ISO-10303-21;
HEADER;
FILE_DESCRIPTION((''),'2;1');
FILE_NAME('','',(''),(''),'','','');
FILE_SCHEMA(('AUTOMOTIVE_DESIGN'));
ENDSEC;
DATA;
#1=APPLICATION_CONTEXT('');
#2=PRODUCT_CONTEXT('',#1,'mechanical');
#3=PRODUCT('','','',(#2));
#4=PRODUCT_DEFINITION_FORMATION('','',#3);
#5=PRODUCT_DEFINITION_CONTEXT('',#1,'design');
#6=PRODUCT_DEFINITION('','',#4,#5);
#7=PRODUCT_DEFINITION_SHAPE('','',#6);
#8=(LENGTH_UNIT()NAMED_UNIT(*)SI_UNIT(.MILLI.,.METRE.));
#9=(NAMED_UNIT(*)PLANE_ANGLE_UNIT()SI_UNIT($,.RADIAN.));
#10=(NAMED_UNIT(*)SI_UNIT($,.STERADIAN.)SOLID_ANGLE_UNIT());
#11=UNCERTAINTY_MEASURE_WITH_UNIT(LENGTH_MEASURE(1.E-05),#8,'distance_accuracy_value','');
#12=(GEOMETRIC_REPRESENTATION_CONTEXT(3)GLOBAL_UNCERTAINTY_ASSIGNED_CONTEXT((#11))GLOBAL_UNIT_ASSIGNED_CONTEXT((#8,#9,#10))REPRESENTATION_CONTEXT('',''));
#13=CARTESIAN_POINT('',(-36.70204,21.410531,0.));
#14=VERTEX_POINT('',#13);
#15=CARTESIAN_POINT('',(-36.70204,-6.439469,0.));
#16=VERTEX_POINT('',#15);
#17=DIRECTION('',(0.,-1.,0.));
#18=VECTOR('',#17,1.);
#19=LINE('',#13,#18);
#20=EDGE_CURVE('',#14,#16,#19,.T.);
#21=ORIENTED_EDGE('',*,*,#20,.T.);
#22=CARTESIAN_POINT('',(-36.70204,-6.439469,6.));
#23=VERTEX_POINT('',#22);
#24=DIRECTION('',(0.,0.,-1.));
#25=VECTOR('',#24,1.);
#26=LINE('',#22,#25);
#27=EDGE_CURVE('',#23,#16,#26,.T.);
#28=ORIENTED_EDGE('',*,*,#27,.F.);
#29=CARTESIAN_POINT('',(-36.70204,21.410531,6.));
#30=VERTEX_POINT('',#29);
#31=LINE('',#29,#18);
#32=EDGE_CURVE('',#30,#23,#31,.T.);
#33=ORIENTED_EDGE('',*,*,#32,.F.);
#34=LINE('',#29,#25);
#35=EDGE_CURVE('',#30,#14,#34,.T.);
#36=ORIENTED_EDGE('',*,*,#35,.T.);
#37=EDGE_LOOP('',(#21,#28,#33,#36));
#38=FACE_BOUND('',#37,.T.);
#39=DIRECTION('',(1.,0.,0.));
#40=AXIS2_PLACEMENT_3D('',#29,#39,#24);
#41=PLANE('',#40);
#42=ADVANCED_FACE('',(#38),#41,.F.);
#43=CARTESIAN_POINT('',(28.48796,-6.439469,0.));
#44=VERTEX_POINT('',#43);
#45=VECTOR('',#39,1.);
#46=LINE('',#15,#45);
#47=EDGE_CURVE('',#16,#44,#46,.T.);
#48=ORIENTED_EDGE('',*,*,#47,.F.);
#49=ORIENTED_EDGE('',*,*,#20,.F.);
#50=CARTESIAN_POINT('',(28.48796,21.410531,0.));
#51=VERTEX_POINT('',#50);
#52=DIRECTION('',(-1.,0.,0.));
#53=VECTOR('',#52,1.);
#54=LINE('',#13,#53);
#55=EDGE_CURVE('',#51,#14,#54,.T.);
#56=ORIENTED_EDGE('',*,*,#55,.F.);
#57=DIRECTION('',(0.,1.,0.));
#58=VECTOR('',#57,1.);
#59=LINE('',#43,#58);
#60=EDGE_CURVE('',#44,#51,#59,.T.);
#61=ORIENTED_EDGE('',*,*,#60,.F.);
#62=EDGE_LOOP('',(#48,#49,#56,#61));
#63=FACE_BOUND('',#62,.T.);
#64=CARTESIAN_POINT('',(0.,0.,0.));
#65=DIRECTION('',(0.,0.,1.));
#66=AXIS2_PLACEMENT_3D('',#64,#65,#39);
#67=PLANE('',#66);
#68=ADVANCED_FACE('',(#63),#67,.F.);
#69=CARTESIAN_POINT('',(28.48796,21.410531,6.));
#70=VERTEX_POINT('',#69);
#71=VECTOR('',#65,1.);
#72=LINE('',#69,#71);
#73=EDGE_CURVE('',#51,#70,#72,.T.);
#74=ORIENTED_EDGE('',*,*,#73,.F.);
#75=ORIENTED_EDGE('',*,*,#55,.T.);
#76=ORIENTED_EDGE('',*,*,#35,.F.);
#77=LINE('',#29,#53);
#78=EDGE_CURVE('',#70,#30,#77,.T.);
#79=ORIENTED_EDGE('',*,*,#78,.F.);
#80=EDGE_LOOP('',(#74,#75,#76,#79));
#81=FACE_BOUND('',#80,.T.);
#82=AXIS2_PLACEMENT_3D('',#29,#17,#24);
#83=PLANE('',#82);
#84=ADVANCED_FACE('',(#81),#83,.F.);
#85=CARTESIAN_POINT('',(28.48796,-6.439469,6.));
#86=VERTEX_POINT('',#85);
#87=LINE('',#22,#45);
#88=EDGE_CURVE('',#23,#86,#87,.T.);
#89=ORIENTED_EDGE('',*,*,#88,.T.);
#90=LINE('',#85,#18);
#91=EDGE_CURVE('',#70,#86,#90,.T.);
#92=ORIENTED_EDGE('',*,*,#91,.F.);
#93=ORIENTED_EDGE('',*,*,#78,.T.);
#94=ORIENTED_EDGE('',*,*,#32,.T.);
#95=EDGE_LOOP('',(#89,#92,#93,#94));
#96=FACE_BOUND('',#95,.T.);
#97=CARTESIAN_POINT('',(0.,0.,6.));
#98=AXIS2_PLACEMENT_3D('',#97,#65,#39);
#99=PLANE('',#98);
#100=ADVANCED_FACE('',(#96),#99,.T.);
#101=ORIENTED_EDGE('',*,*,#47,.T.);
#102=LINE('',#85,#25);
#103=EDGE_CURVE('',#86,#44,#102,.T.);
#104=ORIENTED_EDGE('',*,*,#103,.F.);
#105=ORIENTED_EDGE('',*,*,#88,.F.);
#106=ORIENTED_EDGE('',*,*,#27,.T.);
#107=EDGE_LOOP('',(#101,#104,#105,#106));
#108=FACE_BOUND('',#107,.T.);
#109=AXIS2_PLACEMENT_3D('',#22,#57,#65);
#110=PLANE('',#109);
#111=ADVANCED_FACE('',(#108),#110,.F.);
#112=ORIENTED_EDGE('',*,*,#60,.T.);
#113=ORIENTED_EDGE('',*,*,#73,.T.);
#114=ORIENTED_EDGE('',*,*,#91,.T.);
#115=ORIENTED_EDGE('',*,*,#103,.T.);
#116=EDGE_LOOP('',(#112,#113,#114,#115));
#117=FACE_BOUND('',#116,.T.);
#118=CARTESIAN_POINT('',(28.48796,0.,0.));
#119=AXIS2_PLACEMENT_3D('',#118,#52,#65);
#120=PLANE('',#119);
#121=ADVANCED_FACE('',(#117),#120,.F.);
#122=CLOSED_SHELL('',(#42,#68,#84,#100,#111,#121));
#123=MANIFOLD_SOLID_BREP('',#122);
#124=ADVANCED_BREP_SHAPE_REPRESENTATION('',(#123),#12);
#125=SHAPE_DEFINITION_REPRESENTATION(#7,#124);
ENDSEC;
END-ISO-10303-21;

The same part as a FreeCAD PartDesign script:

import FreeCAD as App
import Part
import Sketcher
Q = App.Units.Quantity

doc = App.newDocument("Part")
params = doc.addObject("Spreadsheet::Sheet", "Params")
for row, (alias, value) in enumerate([
    ("sketch1_width", "63.19 mm"),
    ("sketch1_height", "27.85 mm"),
    ("pad1_length", "6 mm"),
    ("sketch2_height", "6 mm"),
    ("sketch2_width", "27.85 mm"),
    ("pad2_length", "2 mm"),
], start=1):
    params.set(f"A{row}", alias)
    params.set(f"B{row}", "=" + value)
    params.setAlias(f"B{row}", alias)

body = doc.addObject("PartDesign::Body", "Body")

# Sketch on XY plane
sketch1 = body.newObject("Sketcher::SketchObject", "Sketch")
sketch1.AttachmentSupport = (doc.getObject("XY_Plane"), [""])
sketch1.MapMode = "FlatFace"
sketch1.addGeometry([
    Part.LineSegment(App.Vector(-36.70204, 21.410531, 0), App.Vector(-36.70204, -6.439469, 0)),
    Part.LineSegment(App.Vector(-36.70204, -6.439469, 0), App.Vector(26.48796, -6.439469, 0)),
    Part.LineSegment(App.Vector(26.48796, -6.439469, 0), App.Vector(26.48796, 21.410531, 0)),
    Part.LineSegment(App.Vector(26.48796, 21.410531, 0), App.Vector(-36.70204, 21.410531, 0)),
], False)
sketch1.addConstraint([
    Sketcher.Constraint("Coincident", 0, 2, 1, 1),
    Sketcher.Constraint("Coincident", 1, 2, 2, 1),
    Sketcher.Constraint("Coincident", 2, 2, 3, 1),
    Sketcher.Constraint("Coincident", 3, 2, 0, 1),
    Sketcher.Constraint("Vertical", 0),
    Sketcher.Constraint("Horizontal", 1),
    Sketcher.Constraint("Vertical", 2),
    Sketcher.Constraint("Horizontal", 3),
    Sketcher.Constraint("DistanceX", 1, 1, 1, 2, Q("63.19 mm")),
    Sketcher.Constraint("DistanceY", 0, 2, 0, 1, Q("27.85 mm")),
    Sketcher.Constraint("DistanceX", 0, 2, -1, 1, Q("36.70204 mm")),
    Sketcher.Constraint("DistanceY", 0, 2, -1, 1, Q("6.439469 mm")),
])
sketch1.setExpression("Constraints[8]", "Params.sketch1_width")
sketch1.setExpression("Constraints[9]", "Params.sketch1_height")
pad1 = body.newObject("PartDesign::Pad", "Pad")
pad1.Profile = sketch1
pad1.setExpression("Length", "Params.pad1_length")

# Sketch on YZ plane
sketch2 = body.newObject("Sketcher::SketchObject", "Sketch001")
sketch2.AttachmentSupport = (doc.getObject("YZ_Plane"), [""])
sketch2.MapMode = "FlatFace"
sketch2.AttachmentOffset = App.Placement(App.Vector(0, 0, 26.48796), App.Rotation())
sketch2.addGeometry([
    Part.LineSegment(App.Vector(21.410531, 6, 0), App.Vector(-6.439469, 6, 0)),
    Part.LineSegment(App.Vector(-6.439469, 6, 0), App.Vector(-6.439469, 0, 0)),
    Part.LineSegment(App.Vector(-6.439469, 0, 0), App.Vector(21.410531, 0, 0)),
    Part.LineSegment(App.Vector(21.410531, 0, 0), App.Vector(21.410531, 6, 0)),
], False)
sketch2.addConstraint([
    Sketcher.Constraint("Coincident", 0, 2, 1, 1),
    Sketcher.Constraint("Coincident", 1, 2, 2, 1),
    Sketcher.Constraint("Coincident", 2, 2, 3, 1),
    Sketcher.Constraint("Coincident", 3, 2, 0, 1),
    Sketcher.Constraint("Horizontal", 0),
    Sketcher.Constraint("Vertical", 1),
    Sketcher.Constraint("Horizontal", 2),
    Sketcher.Constraint("Vertical", 3),
    Sketcher.Constraint("PointOnObject", 1, 2, -1),
    Sketcher.Constraint("DistanceY", 1, 2, 1, 1, Q("6 mm")),
    Sketcher.Constraint("DistanceX", 0, 2, 0, 1, Q("27.85 mm")),
    Sketcher.Constraint("DistanceX", 0, 2, -1, 1, Q("6.439469 mm")),
])
sketch2.setExpression("Constraints[9]", "Params.sketch2_height")
sketch2.setExpression("Constraints[10]", "Params.sketch2_width")
pad2 = body.newObject("PartDesign::Pad", "Pad001")
pad2.Profile = sketch2
pad2.setExpression("Length", "Params.pad2_length")

doc.recompute()
